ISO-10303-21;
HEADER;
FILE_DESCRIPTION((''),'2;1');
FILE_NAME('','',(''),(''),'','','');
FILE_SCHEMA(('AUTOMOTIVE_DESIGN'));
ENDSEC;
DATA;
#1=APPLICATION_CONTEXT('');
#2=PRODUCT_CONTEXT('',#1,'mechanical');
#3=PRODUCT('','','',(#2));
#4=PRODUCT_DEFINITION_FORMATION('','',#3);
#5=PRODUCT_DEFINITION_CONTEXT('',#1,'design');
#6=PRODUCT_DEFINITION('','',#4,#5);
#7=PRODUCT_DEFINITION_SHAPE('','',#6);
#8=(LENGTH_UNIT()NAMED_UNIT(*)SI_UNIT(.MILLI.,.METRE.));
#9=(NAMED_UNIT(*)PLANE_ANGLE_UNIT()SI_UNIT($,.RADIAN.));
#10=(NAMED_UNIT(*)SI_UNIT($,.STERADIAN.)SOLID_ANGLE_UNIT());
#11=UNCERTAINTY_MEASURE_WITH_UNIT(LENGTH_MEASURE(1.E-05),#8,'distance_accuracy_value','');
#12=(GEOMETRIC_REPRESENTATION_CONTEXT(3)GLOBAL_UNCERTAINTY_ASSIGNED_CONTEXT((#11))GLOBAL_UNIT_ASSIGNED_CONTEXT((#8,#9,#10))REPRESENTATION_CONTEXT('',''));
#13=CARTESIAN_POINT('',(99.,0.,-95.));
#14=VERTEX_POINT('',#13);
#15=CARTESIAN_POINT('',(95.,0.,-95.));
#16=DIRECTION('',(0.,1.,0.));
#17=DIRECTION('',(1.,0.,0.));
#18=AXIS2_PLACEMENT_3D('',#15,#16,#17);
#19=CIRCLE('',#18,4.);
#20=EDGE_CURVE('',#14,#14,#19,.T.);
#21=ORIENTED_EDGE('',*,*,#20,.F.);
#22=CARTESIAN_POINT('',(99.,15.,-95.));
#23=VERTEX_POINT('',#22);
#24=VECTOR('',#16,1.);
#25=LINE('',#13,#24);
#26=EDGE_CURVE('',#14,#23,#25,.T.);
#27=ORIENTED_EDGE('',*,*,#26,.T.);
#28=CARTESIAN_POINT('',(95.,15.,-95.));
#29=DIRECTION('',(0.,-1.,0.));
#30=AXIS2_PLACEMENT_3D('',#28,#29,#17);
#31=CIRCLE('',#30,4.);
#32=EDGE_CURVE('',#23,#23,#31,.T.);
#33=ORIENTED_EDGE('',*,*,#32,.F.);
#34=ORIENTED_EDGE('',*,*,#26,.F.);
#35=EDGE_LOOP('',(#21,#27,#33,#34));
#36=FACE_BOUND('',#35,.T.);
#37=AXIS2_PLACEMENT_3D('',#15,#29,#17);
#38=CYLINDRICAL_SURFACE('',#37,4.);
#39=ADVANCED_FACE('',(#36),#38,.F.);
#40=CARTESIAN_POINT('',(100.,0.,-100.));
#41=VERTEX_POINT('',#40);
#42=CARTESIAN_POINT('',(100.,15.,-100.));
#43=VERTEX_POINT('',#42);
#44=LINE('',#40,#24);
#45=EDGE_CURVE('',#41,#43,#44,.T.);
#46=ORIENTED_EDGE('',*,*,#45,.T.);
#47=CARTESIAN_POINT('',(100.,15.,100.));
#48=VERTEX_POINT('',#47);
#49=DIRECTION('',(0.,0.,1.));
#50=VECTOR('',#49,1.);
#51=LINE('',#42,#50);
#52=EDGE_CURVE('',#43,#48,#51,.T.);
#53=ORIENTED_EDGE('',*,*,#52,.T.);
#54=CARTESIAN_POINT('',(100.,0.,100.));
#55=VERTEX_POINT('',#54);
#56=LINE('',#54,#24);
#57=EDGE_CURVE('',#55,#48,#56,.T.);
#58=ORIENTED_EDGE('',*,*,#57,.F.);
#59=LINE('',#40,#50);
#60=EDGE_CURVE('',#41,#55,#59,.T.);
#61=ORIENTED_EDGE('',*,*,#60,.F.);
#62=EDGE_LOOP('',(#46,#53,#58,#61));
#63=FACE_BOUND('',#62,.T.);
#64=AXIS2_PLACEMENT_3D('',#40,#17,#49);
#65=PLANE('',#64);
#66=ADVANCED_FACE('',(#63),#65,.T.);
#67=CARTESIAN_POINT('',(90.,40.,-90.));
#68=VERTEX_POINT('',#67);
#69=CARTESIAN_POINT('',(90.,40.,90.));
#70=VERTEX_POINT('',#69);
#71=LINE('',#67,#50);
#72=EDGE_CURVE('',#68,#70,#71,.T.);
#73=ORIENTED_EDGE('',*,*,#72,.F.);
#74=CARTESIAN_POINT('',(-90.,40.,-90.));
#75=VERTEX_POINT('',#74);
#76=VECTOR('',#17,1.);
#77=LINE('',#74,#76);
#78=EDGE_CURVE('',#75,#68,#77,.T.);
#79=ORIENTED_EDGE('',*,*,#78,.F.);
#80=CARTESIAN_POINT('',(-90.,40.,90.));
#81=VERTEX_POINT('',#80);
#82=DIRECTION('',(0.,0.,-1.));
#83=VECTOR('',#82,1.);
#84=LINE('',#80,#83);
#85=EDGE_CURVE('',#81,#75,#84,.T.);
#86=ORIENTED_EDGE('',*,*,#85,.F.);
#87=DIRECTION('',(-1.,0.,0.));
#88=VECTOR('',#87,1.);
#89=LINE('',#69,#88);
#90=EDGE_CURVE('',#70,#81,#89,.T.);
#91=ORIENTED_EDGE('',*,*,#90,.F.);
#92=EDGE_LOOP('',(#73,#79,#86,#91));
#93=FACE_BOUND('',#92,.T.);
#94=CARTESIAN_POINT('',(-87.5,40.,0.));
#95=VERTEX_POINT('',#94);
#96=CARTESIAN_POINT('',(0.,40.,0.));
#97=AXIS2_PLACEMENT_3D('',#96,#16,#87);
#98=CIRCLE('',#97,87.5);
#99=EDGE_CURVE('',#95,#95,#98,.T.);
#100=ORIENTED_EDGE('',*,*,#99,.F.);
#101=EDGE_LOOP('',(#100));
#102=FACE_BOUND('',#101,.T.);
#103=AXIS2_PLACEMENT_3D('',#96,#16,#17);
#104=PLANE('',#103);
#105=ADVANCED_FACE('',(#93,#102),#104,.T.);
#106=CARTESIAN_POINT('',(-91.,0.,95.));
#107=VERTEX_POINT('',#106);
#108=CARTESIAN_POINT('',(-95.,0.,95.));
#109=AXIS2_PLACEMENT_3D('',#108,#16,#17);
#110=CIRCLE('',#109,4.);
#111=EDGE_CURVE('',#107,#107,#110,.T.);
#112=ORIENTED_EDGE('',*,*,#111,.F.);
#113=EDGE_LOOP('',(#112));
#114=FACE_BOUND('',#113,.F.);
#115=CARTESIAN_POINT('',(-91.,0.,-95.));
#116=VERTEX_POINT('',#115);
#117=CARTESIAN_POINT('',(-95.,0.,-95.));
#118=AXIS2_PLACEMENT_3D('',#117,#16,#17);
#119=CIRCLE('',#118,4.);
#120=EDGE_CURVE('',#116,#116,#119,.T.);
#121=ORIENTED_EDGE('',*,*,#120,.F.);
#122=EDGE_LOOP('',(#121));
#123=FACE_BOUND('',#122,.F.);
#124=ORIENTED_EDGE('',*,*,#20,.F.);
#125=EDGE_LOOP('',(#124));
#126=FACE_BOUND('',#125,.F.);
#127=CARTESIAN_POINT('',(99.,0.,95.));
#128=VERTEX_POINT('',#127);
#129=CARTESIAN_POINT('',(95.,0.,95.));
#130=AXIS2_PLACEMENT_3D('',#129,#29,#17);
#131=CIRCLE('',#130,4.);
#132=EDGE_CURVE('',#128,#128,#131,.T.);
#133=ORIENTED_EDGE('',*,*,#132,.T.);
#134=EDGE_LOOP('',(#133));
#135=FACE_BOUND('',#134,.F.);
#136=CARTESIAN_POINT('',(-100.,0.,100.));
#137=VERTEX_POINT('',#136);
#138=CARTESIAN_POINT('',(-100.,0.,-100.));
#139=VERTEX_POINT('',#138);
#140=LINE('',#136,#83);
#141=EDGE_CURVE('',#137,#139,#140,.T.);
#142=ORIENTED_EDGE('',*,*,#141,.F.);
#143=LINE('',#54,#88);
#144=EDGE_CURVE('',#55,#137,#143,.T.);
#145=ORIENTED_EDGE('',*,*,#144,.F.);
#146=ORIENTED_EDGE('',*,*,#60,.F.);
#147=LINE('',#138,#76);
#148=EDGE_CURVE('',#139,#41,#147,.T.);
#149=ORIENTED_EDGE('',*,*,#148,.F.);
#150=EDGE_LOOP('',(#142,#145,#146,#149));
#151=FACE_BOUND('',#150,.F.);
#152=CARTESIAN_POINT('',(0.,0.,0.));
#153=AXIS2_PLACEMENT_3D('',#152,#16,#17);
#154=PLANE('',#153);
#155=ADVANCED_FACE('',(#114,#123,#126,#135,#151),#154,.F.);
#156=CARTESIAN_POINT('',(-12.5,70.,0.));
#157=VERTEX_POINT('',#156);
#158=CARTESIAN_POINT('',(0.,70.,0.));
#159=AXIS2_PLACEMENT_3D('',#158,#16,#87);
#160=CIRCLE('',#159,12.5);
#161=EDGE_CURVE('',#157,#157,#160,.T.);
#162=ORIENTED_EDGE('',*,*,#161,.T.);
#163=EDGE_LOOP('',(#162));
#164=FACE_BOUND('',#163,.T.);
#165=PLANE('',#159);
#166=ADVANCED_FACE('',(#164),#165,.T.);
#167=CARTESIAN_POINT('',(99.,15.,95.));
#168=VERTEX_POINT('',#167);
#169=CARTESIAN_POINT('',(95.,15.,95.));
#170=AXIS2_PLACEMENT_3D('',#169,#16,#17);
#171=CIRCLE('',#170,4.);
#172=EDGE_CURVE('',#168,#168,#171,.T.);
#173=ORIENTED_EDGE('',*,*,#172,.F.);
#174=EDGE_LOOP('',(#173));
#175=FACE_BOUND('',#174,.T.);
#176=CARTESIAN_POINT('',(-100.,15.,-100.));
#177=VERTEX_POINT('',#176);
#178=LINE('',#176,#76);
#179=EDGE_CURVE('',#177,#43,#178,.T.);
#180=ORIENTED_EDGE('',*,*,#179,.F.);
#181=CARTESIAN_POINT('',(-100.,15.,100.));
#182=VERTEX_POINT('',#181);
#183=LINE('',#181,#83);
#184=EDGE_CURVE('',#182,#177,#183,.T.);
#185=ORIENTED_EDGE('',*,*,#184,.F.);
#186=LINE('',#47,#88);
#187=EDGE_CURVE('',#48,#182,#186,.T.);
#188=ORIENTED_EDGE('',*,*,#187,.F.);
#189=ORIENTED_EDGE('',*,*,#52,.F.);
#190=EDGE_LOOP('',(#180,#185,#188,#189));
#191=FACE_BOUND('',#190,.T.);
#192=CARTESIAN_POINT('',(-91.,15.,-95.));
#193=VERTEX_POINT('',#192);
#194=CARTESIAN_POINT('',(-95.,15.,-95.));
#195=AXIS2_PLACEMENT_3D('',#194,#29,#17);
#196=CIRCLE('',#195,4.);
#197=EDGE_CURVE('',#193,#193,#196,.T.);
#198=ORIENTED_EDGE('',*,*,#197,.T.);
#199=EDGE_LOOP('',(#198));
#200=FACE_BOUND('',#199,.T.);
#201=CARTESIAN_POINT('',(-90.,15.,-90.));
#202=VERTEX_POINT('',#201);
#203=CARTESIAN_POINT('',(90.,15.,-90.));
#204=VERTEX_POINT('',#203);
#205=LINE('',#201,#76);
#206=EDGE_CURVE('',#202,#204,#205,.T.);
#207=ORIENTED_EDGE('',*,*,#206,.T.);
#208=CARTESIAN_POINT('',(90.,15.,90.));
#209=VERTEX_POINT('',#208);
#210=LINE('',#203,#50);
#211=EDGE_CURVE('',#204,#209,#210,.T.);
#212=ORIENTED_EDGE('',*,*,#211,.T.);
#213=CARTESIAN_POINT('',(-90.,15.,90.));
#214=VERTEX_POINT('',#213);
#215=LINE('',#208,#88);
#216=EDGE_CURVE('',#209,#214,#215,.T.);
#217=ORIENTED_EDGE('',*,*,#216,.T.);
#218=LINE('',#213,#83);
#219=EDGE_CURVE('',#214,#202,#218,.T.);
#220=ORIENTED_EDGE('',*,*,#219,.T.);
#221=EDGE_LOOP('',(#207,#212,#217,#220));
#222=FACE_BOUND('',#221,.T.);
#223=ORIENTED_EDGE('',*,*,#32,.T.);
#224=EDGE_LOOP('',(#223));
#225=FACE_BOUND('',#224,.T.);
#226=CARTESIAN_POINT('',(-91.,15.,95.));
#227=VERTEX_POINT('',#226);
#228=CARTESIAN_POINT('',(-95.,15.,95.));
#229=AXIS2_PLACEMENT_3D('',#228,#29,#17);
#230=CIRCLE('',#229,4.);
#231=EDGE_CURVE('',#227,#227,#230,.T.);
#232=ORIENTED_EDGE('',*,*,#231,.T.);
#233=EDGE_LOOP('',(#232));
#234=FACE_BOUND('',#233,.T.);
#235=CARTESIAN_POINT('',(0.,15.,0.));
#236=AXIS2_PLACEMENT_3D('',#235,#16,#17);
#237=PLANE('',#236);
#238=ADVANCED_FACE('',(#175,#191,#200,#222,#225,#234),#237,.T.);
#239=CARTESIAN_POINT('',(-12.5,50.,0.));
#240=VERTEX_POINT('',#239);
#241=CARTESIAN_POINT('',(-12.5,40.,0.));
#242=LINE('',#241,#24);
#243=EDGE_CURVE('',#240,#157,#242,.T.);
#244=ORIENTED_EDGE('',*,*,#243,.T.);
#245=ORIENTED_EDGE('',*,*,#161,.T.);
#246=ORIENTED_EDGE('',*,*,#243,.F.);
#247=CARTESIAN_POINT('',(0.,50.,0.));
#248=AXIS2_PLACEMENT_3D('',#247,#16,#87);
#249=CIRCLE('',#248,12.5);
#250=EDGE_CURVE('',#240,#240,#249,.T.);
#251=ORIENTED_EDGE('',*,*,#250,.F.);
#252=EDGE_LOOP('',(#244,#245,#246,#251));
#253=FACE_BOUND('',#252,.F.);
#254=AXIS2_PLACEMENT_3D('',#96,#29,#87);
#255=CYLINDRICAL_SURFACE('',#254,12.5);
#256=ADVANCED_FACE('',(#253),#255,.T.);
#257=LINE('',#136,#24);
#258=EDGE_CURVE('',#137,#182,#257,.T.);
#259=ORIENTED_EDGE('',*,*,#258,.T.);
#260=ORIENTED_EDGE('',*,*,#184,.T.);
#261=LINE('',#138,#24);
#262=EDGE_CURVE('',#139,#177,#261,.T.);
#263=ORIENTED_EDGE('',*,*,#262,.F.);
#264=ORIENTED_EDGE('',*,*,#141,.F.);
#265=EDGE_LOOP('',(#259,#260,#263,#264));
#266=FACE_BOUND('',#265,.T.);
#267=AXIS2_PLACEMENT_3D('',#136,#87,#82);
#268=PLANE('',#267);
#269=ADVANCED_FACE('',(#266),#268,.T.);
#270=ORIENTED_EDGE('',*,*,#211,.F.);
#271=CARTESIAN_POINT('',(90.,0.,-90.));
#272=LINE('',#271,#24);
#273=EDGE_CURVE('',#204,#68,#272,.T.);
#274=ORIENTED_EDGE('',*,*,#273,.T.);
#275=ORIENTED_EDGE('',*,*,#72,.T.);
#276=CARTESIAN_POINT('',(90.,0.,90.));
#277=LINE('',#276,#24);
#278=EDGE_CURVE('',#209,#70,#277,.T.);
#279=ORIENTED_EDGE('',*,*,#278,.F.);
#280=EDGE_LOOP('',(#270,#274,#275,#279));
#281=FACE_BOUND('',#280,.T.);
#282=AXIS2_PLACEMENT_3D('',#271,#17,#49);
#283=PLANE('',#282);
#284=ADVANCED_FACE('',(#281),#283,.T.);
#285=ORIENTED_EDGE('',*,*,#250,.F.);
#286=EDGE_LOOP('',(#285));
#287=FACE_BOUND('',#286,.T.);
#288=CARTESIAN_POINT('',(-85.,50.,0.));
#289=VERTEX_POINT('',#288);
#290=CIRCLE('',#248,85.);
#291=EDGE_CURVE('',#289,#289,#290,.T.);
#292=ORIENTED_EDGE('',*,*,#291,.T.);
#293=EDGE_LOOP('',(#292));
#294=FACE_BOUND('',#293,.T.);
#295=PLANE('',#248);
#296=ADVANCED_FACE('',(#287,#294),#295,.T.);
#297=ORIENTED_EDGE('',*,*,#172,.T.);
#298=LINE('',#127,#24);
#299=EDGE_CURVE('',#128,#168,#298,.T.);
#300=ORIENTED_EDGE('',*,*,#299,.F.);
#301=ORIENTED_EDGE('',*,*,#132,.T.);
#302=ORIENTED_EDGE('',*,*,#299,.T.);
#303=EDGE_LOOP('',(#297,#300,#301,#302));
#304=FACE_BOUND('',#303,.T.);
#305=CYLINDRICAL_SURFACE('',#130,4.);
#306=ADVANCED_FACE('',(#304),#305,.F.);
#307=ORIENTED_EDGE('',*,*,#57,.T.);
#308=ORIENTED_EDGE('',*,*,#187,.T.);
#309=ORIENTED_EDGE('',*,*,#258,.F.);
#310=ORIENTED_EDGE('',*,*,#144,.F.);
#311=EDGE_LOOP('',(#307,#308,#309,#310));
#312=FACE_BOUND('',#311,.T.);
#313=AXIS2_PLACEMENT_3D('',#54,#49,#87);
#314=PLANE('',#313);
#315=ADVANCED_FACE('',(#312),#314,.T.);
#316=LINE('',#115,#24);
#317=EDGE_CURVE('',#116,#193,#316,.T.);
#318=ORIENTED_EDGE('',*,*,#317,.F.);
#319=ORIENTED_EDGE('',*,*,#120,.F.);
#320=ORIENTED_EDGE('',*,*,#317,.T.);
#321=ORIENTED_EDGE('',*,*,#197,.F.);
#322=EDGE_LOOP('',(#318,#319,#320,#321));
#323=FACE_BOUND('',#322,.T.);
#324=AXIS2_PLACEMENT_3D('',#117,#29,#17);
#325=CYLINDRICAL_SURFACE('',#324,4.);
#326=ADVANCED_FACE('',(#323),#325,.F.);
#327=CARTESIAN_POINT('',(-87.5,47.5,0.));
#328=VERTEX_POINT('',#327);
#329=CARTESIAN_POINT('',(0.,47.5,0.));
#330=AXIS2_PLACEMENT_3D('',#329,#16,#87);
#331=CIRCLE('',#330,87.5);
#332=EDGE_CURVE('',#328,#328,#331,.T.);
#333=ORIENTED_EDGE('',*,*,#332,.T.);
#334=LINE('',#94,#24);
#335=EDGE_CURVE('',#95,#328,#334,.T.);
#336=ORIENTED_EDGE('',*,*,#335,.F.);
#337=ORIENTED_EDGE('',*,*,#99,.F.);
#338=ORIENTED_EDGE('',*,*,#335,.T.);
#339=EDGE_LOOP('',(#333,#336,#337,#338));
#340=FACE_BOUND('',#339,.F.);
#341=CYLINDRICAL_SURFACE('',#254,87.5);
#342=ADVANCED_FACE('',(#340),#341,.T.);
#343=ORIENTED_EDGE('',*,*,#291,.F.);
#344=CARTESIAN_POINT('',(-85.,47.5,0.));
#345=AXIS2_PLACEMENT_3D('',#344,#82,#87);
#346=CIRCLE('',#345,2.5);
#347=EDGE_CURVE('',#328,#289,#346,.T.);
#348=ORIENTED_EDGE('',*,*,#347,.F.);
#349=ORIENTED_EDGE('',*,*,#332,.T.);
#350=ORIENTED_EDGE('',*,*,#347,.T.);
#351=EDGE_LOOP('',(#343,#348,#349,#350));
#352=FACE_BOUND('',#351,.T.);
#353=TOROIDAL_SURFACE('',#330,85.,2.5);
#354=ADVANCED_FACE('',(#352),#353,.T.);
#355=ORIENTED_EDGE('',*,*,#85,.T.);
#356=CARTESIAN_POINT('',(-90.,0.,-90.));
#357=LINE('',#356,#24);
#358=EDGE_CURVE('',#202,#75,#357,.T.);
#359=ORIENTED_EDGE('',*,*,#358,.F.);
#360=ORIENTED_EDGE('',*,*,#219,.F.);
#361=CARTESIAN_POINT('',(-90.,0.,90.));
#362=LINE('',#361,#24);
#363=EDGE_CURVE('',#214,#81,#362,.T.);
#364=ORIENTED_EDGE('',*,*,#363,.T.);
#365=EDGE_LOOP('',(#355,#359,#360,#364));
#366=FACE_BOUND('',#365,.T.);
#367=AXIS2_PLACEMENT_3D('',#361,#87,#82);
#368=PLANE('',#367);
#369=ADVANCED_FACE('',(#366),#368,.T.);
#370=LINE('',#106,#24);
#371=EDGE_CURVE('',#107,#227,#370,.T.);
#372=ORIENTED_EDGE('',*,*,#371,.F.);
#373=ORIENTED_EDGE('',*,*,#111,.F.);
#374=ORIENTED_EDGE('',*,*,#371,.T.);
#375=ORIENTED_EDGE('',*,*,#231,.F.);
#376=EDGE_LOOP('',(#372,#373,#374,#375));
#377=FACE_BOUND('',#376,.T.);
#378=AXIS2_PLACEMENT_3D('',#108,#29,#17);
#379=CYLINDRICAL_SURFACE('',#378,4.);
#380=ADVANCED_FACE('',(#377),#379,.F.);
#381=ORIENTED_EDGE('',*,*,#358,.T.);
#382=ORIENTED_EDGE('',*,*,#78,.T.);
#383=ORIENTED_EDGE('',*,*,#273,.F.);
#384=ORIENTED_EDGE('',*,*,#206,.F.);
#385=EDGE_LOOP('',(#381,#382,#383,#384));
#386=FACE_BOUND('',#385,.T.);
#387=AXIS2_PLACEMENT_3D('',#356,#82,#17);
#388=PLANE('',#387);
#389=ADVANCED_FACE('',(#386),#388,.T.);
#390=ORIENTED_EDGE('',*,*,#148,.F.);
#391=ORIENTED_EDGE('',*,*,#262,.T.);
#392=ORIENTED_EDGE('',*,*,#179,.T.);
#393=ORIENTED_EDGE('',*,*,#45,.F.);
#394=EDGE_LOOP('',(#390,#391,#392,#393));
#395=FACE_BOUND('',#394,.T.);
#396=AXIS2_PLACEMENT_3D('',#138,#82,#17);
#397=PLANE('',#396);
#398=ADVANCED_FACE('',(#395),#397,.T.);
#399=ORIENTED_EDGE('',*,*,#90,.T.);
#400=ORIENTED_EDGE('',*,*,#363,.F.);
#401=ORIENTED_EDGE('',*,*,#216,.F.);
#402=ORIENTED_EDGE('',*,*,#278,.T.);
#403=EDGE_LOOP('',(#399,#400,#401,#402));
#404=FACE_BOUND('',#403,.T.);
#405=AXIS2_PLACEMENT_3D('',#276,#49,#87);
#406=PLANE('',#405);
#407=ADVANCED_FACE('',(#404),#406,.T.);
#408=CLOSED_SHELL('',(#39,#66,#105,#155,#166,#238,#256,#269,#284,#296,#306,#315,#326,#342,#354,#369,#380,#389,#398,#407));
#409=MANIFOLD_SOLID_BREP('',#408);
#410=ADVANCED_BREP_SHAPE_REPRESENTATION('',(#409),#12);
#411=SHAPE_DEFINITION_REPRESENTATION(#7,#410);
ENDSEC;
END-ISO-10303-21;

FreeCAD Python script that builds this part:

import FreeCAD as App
import Part
import Sketcher
from FreeCAD import Vector
Q = App.Units.Quantity


def edges_at(feature, points):
    """Names of the edges that pass closest to the given points."""
    edges = feature.Shape.Edges
    near = lambda p: min(range(len(edges)), key=lambda i: edges[i].distToShape(Part.Vertex(*p))[0])
    return sorted({f"Edge{near(p) + 1}" for p in points})

doc = App.newDocument("Part")
body = doc.addObject("PartDesign::Body", "Body")

sketch1 = doc.addObject("Sketcher::SketchObject", "Sketch")
body.addObject(sketch1)
sketch1.AttachmentSupport = (doc.XZ_Plane, [""])
sketch1.MapMode = "FlatFace"
sketch1.addGeometry([
    Part.LineSegment(Vector(-90, 90, 0), Vector(90, 90, 0)),
    Part.LineSegment(Vector(90, 90, 0), Vector(90, -90, 0)),
    Part.LineSegment(Vector(90, -90, 0), Vector(-90, -90, 0)),
    Part.LineSegment(Vector(-90, -90, 0), Vector(-90, 90, 0)),
], False)
sketch1.addConstraint([
    Sketcher.Constraint("Coincident", 0, 2, 1, 1),
    Sketcher.Constraint("Coincident", 1, 2, 2, 1),
    Sketcher.Constraint("Coincident", 2, 2, 3, 1),
    Sketcher.Constraint("Coincident", 3, 2, 0, 1),
    Sketcher.Constraint("Horizontal", 0),
    Sketcher.Constraint("Vertical", 1),
    Sketcher.Constraint("Horizontal", 2),
    Sketcher.Constraint("Vertical", 3),
    Sketcher.Constraint("Symmetric", 0, 2, 2, 2, -1, 1),
    Sketcher.Constraint("Equal", 2, 1),
    Sketcher.Constraint("DistanceX", 0, 1, 0, 2, Q("180 mm")),
])
pad1 = doc.addObject("PartDesign::Pad", "Pad")
body.addObject(pad1)
pad1.Profile = sketch1
pad1.Length = 40
pad1.Reversed = True

sketch2 = doc.addObject("Sketcher::SketchObject", "Sketch001")
body.addObject(sketch2)
sketch2.AttachmentSupport = (doc.XZ_Plane, [""])
sketch2.MapMode = "FlatFace"
sketch2.addGeometry([
    Part.LineSegment(Vector(-100, 100, 0), Vector(100, 100, 0)),
    Part.LineSegment(Vector(100, 100, 0), Vector(100, -100, 0)),
    Part.LineSegment(Vector(100, -100, 0), Vector(-100, -100, 0)),
    Part.LineSegment(Vector(-100, -100, 0), Vector(-100, 100, 0)),
    Part.Circle(Vector(95, 95, 0), Vector(0, 0, 1), 4),
    Part.Circle(Vector(-95, 95, 0), Vector(0, 0, 1), 4),
    Part.LineSegment(Vector(90, 90, 0), Vector(-90, 90, 0)),
    Part.LineSegment(Vector(-90, 90, 0), Vector(-90, -90, 0)),
    Part.LineSegment(Vector(-90, -90, 0), Vector(90, -90, 0)),
    Part.LineSegment(Vector(90, -90, 0), Vector(90, 90, 0)),
    Part.Circle(Vector(95, -95, 0), Vector(0, 0, 1), 4),
    Part.Circle(Vector(-95, -95, 0), Vector(0, 0, 1), 4),
], False)
sketch2.addConstraint([
    Sketcher.Constraint("Coincident", 0, 2, 1, 1),
    Sketcher.Constraint("Coincident", 1, 2, 2, 1),
    Sketcher.Constraint("Coincident", 2, 2, 3, 1),
    Sketcher.Constraint("Coincident", 3, 2, 0, 1),
    Sketcher.Constraint("Coincident", 6, 2, 7, 1),
    Sketcher.Constraint("Coincident", 7, 2, 8, 1),
    Sketcher.Constraint("Coincident", 8, 2, 9, 1),
    Sketcher.Constraint("Coincident", 9, 2, 6, 1),
    Sketcher.Constraint("Horizontal", 0),
    Sketcher.Constraint("Vertical", 1),
    Sketcher.Constraint("Horizontal", 2),
    Sketcher.Constraint("Vertical", 3),
    Sketcher.Constraint("Horizontal", 6),
    Sketcher.Constraint("Vertical", 7),
    Sketcher.Constraint("Horizontal", 8),
    Sketcher.Constraint("Vertical", 9),
    Sketcher.Constraint("Equal", 4, 5),
    Sketcher.Constraint("Equal", 5, 10),
    Sketcher.Constraint("Equal", 10, 11),
    Sketcher.Constraint("Symmetric", 5, 3, 10, 3, -1, 1),
    Sketcher.Constraint("Symmetric", 4, 3, 11, 3, -1, 1),
    Sketcher.Constraint("Symmetric", 0, 2, 2, 2, -1, 1),
    Sketcher.Constraint("Symmetric", 6, 2, 8, 2, -1, 1),
    Sketcher.Constraint("Symmetric", 4, 3, 5, 3, -2),
    Sketcher.Constraint("Equal", 2, 1),
    Sketcher.Constraint("Equal", 8, 7),
    Sketcher.Constraint("Diameter", 4, Q("8 mm")),
    Sketcher.Constraint("DistanceX", 0, 1, 0, 2, Q("200 mm")),
    Sketcher.Constraint("DistanceX", 6, 2, 6, 1, Q("180 mm")),
    Sketcher.Constraint("DistanceX", -1, 1, 4, 3, Q("95 mm")),
    Sketcher.Constraint("DistanceY", -1, 1, 4, 3, Q("95 mm")),
])
pad2 = doc.addObject("PartDesign::Pad", "Pad001")
body.addObject(pad2)
pad2.Profile = sketch2
pad2.Length = 15
pad2.Reversed = True

sketch3 = doc.addObject("Sketcher::SketchObject", "Sketch002")
body.addObject(sketch3)
sketch3.AttachmentSupport = (doc.XZ_Plane, [""])
sketch3.MapMode = "FlatFace"
sketch3.AttachmentOffset = App.Placement(Vector(0, 0, -40), App.Rotation())
sketch3.addGeometry(Part.Circle(Vector(0, 0, 0), Vector(0, 0, 1), 12), False)
sketch3.addConstraint([
    Sketcher.Constraint("Coincident", 0, 3, -1, 1),
    Sketcher.Constraint("Diameter", 0, Q("25 mm")),
])
pad3 = doc.addObject("PartDesign::Pad", "Pad002")
body.addObject(pad3)
pad3.Profile = sketch3
pad3.Length = 30
pad3.Reversed = True

sketch4 = doc.addObject("Sketcher::SketchObject", "Sketch003")
body.addObject(sketch4)
sketch4.AttachmentSupport = (doc.XZ_Plane, [""])
sketch4.MapMode = "FlatFace"
sketch4.AttachmentOffset = App.Placement(Vector(0, 0, -40), App.Rotation())
sketch4.addGeometry([
    Part.Circle(Vector(0, 0, 0), Vector(0, 0, 1), 88),
    Part.Circle(Vector(0, 0, 0), Vector(0, 0, 1), 12),
], False)
sketch4.addConstraint([
    Sketcher.Constraint("Coincident", 0, 3, -1, 1),
    Sketcher.Constraint("Coincident", 1, 3, -1, 1),
    Sketcher.Constraint("Diameter", 0, Q("175 mm")),
    Sketcher.Constraint("Diameter", 1, Q("25 mm")),
])
pad4 = doc.addObject("PartDesign::Pad", "Pad003")
body.addObject(pad4)
pad4.Profile = sketch4
pad4.Length = 10
pad4.Reversed = True
doc.recompute()

fillet = doc.addObject("PartDesign::Fillet", "Fillet")
body.addObject(fillet)
fillet.Base = (pad4, edges_at(pad4, [(81.579, 50, -31.641)]))
fillet.Radius = 2.5

doc.recompute()
